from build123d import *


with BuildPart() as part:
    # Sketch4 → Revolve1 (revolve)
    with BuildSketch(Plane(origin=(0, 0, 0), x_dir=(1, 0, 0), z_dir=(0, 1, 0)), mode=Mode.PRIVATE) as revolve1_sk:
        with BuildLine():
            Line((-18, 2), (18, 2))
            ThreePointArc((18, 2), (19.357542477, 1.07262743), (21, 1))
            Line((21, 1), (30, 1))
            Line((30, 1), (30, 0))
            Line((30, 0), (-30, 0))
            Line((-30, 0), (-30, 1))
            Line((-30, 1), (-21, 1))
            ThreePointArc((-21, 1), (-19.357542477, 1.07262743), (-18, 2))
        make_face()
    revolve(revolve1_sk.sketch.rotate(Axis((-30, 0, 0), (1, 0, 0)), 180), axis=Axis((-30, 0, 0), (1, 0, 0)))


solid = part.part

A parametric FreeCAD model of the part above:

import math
import FreeCAD as App
import Part
import Sketcher

doc = App.newDocument("Part")
body = doc.addObject("PartDesign::Body", "Body")

# Sketch on XZ plane
sketch1 = body.newObject("Sketcher::SketchObject", "Sketch")
sketch1.AttachmentSupport = (doc.getObject("XZ_Plane"), [""])
sketch1.MapMode = "FlatFace"
sketch1.addGeometry([
    Part.LineSegment(App.Vector(18, -2, 0), App.Vector(-18, -2, 0)),  # 0
    Part.ArcOfCircle(Part.Circle(App.Vector(-20.3, -3.9, 0), App.Vector(0, 0, 1), 3), math.radians(40), math.radians(103)),  # 1
    Part.LineSegment(App.Vector(-21, -1, 0), App.Vector(-30, -1, 0)),  # 2
    Part.LineSegment(App.Vector(-30, -1, 0), App.Vector(-30, 0, 0)),  # 3
    Part.LineSegment(App.Vector(-30, 0, 0), App.Vector(30, 0, 0)),  # 4
    Part.LineSegment(App.Vector(30, 0, 0), App.Vector(30, -1, 0)),  # 5
    Part.LineSegment(App.Vector(30, -1, 0), App.Vector(21, -1, 0)),  # 6
    Part.ArcOfCircle(Part.Circle(App.Vector(20.3, -3.9, 0), App.Vector(0, 0, 1), 3), math.radians(77), math.radians(140)),  # 7
], False)
sketch1.addConstraint([
    Sketcher.Constraint("Coincident", 0, 2, 1, 1),
    Sketcher.Constraint("Coincident", 1, 2, 2, 1),
    Sketcher.Constraint("Coincident", 2, 2, 3, 1),
    Sketcher.Constraint("Coincident", 3, 2, 4, 1),
    Sketcher.Constraint("Coincident", 4, 2, 5, 1),
    Sketcher.Constraint("Coincident", 5, 2, 6, 1),
    Sketcher.Constraint("Coincident", 6, 2, 7, 1),
    Sketcher.Constraint("Coincident", 7, 2, 0, 1),
    Sketcher.Constraint("Horizontal", 0),
    Sketcher.Constraint("Horizontal", 2),
    Sketcher.Constraint("Vertical", 3),
    Sketcher.Constraint("Horizontal", 4),
    Sketcher.Constraint("Vertical", 5),
    Sketcher.Constraint("Horizontal", 6),
    Sketcher.Constraint("Equal", 1, 7),
    Sketcher.Constraint("Symmetric", 3, 2, 4, 2, -1, 1),
    Sketcher.Constraint("Symmetric", 1, 3, 7, 3, -2),
    Sketcher.Constraint("Horizontal", 2, 2, 5, 2),
    Sketcher.Constraint("Radius", 1, 3.0),
    Sketcher.Constraint("DistanceX", 0, 2, 0, 1, 36.0),
    Sketcher.Constraint("DistanceX", 2, 2, 2, 1, 9.0),
    Sketcher.Constraint("DistanceX", 4, 1, 4, 2, 60.0),
    Sketcher.Constraint("DistanceY", 3, 1, 3, 2, 1.0),
    Sketcher.Constraint("DistanceY", 0, 2, -1, 1, 2.0),
])
revolution = body.newObject("PartDesign::Revolution", "Revolution")
revolution.Profile = sketch1
revolution.ReferenceAxis = (sketch1, ["H_Axis"])
revolution.Angle = 360

doc.recompute()
